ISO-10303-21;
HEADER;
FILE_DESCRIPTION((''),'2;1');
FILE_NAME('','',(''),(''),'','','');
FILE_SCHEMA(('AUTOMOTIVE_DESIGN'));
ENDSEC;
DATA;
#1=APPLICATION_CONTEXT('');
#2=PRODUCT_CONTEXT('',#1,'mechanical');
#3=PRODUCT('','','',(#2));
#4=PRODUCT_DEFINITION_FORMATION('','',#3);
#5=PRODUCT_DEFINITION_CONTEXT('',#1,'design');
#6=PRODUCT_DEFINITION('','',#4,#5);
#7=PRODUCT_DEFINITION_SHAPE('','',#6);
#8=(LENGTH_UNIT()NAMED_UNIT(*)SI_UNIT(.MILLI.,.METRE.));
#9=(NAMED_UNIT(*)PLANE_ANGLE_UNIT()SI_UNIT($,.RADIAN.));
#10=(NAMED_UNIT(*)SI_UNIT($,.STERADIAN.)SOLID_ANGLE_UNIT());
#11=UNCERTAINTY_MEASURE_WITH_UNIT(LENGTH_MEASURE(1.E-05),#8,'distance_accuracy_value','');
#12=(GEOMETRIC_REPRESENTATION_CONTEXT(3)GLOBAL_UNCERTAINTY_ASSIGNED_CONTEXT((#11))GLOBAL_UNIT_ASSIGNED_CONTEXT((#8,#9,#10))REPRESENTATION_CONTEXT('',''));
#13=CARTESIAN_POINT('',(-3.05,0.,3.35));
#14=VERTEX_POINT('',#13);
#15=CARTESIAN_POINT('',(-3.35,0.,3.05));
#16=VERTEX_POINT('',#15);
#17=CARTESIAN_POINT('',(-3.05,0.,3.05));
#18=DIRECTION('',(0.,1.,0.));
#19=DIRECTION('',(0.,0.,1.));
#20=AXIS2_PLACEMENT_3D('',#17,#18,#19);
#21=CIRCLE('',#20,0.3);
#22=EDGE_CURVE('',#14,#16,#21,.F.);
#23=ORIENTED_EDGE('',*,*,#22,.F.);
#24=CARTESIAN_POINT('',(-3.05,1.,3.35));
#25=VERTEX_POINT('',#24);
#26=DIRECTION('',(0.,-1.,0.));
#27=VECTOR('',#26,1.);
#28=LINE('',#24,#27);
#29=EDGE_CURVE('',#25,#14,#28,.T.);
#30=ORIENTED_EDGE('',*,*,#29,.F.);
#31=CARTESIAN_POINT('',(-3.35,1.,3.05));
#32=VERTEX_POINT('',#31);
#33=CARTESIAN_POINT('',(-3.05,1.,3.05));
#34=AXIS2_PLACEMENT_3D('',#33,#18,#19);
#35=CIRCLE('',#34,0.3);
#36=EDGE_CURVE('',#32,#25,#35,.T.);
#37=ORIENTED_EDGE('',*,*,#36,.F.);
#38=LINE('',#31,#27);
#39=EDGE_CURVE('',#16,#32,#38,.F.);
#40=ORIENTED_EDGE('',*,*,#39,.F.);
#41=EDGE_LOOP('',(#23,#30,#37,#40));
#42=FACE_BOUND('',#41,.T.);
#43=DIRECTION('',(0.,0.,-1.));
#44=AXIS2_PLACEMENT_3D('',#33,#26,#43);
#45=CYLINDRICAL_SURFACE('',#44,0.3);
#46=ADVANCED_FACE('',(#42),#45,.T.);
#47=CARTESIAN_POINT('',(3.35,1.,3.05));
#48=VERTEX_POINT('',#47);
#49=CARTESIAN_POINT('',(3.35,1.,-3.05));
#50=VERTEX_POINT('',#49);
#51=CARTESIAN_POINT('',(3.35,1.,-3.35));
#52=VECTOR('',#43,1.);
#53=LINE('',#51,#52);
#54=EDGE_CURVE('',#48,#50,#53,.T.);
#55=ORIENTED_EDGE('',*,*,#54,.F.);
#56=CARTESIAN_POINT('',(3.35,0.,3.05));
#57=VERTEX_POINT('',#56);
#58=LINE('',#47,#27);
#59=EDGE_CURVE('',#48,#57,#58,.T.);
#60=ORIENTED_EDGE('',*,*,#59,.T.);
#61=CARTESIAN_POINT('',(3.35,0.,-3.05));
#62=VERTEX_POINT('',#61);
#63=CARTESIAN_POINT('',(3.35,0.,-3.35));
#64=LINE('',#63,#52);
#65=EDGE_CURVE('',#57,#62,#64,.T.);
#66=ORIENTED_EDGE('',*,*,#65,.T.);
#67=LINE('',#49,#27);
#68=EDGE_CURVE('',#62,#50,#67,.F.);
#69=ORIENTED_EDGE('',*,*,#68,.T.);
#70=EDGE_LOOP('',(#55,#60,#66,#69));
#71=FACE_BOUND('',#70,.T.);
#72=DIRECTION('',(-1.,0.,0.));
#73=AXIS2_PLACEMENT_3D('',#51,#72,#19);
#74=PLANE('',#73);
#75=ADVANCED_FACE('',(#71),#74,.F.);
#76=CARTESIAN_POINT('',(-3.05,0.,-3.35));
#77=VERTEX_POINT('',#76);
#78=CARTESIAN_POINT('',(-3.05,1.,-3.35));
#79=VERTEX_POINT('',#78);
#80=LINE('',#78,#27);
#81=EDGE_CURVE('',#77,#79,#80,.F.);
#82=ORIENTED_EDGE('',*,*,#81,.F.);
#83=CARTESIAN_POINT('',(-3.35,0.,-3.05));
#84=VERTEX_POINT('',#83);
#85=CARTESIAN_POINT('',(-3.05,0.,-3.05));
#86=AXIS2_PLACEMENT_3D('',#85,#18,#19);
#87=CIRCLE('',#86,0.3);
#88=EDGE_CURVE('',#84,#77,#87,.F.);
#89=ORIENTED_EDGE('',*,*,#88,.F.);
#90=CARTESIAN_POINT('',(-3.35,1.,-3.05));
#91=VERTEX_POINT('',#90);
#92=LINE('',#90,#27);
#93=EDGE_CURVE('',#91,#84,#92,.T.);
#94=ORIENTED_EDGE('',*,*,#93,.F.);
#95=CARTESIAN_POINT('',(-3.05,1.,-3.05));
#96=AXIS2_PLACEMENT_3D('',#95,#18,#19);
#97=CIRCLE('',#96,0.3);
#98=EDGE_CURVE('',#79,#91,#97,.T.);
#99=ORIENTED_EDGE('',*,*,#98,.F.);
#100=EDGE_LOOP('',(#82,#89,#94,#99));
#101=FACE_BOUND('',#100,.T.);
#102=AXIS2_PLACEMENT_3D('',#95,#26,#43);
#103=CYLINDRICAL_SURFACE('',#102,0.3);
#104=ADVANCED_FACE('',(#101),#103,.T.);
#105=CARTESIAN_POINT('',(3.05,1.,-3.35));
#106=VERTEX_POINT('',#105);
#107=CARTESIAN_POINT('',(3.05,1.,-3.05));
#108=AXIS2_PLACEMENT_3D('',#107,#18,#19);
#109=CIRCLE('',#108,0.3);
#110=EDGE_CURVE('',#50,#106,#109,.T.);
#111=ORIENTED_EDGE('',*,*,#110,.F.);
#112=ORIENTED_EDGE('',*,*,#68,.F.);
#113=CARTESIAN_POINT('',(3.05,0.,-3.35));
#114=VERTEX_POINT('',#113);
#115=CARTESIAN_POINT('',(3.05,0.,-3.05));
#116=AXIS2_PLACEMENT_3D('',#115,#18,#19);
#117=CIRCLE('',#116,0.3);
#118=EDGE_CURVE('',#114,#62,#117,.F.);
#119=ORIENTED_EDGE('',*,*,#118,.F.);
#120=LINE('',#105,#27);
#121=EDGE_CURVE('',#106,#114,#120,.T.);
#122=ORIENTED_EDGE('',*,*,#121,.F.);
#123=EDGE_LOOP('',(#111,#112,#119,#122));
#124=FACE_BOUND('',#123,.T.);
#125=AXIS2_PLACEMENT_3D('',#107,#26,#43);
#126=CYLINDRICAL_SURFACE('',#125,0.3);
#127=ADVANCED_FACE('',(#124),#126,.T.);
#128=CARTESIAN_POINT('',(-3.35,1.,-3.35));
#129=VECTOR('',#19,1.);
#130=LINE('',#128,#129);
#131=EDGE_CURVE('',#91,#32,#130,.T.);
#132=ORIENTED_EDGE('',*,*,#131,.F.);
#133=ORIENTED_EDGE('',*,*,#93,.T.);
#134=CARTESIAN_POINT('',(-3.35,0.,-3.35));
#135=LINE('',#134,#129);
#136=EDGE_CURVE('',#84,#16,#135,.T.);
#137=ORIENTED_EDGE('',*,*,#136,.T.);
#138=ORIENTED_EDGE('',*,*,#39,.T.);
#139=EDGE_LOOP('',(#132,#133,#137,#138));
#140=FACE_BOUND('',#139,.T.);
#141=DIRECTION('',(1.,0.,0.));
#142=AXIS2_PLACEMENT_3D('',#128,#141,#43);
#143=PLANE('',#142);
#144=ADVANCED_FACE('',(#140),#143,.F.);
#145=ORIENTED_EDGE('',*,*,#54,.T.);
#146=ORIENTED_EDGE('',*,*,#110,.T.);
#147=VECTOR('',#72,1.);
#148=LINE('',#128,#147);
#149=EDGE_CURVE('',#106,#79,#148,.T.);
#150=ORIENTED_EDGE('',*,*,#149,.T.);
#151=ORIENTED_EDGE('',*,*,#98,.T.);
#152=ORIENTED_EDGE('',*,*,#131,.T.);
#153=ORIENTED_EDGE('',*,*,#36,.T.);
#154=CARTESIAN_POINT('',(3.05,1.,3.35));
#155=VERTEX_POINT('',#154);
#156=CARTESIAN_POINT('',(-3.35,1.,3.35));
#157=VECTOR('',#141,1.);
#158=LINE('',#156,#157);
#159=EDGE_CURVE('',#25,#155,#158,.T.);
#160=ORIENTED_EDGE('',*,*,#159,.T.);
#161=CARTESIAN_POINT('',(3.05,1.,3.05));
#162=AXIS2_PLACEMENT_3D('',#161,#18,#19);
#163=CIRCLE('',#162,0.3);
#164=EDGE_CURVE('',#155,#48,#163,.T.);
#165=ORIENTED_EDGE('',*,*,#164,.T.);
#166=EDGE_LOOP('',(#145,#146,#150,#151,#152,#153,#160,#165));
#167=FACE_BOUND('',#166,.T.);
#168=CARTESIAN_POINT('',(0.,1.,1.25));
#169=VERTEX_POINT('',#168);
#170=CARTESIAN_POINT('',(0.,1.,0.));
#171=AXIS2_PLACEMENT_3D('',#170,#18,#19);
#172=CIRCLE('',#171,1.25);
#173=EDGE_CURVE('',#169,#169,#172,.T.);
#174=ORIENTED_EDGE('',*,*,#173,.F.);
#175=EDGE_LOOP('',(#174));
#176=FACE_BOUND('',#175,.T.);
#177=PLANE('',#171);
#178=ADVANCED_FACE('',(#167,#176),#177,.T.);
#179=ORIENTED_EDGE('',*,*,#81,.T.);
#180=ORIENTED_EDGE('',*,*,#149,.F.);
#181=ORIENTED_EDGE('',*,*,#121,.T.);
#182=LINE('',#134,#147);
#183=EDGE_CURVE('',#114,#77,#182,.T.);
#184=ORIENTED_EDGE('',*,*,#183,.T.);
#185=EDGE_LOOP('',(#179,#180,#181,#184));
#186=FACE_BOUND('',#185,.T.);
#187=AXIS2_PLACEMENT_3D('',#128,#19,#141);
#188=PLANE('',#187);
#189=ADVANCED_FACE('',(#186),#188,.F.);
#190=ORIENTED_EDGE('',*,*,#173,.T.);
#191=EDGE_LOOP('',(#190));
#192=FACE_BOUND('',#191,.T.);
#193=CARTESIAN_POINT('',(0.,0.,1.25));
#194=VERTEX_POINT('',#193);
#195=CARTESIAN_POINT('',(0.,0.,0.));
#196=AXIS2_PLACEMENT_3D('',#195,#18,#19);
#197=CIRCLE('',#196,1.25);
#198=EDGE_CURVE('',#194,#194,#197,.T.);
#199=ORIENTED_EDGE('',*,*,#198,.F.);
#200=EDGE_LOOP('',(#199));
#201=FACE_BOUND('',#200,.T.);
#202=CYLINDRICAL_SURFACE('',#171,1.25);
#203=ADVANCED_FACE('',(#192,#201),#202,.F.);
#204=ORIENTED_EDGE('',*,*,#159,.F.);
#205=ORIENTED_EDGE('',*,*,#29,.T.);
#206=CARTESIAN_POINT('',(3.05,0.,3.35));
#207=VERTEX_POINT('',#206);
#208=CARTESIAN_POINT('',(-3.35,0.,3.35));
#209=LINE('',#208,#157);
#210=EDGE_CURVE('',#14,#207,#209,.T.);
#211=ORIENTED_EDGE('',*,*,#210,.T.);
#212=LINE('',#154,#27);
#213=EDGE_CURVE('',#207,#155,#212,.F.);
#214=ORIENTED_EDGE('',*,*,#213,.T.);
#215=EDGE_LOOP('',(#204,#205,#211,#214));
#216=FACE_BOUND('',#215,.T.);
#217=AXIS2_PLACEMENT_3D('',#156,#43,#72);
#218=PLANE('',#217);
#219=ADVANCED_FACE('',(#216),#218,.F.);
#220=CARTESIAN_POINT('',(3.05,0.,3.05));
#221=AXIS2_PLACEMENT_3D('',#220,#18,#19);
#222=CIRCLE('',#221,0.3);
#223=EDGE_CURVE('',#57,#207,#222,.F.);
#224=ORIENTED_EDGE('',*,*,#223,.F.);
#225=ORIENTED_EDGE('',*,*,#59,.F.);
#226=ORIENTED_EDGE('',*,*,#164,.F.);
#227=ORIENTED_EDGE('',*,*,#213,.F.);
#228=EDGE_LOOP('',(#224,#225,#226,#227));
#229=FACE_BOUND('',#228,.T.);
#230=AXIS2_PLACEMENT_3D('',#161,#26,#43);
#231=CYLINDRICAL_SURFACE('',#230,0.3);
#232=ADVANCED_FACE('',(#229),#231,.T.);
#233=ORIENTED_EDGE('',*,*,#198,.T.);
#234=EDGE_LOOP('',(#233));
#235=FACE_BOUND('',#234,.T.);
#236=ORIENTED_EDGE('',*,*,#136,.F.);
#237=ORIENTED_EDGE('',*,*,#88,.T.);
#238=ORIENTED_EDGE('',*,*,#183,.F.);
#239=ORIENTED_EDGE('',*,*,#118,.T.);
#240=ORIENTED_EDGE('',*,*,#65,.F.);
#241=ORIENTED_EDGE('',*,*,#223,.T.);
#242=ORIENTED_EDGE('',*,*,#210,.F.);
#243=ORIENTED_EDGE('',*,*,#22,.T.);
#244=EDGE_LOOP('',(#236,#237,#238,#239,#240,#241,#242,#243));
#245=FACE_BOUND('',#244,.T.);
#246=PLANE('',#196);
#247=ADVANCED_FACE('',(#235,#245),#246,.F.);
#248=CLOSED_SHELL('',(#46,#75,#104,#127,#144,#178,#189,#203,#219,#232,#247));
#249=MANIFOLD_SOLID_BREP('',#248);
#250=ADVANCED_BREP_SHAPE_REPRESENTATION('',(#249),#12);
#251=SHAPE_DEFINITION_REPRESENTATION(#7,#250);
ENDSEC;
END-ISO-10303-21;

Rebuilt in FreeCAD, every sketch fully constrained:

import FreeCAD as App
import Part
import Sketcher

V = App.Vector


def edges_at(feature, points):
    """Names of the edges that pass closest to the given points."""
    edges = feature.Shape.Edges
    near = lambda p: min(range(len(edges)), key=lambda i: edges[i].distToShape(Part.Vertex(*p))[0])
    return sorted({f"Edge{near(p) + 1}" for p in points})


def add_polygon(sketch, points):
    """Adds a closed chain of lines whose ends are joined by coincident constraints."""
    first, n = sketch.GeometryCount, len(points)
    for a, b in zip(points, points[1:] + points[:1]):
        sketch.addGeometry(Part.LineSegment(App.Vector(*a, 0), App.Vector(*b, 0)), False)
    for i in range(n):
        sketch.addConstraint(Sketcher.Constraint("Coincident", first + i, 2, first + (i + 1) % n, 1))

doc = App.newDocument("Part")
params = doc.addObject("Spreadsheet::Sheet", "Params")
for row, (alias, value) in enumerate([
    ("sketch1_width", "6.7 mm"),
    ("pad1_length", "1 mm"),
    ("sketch2_diameter", "2.5 mm"),
    ("hole_diameter", "2.5 mm"),
    ("fillet_radius", "0.3 mm"),
], start=1):
    params.set(f"A{row}", alias)
    params.set(f"B{row}", "=" + value)
    params.setAlias(f"B{row}", alias)

body = doc.addObject("PartDesign::Body", "Body")

# Sketch on XZ plane
sketch1 = body.newObject("Sketcher::SketchObject", "Sketch")
sketch1.AttachmentSupport = (doc.getObject("XZ_Plane"), [""])
sketch1.MapMode = "FlatFace"
add_polygon(sketch1, [(-3, -3), (-3, 3), (3, 3), (3, -3)])  # lines 0-3
sketch1.addConstraint([
    Sketcher.Constraint("Vertical", 0),
    Sketcher.Constraint("Horizontal", 1),
    Sketcher.Constraint("Vertical", 2),
    Sketcher.Constraint("Horizontal", 3),
    Sketcher.Constraint("Symmetric", 0, 2, 2, 2, -1, 1),
    Sketcher.Constraint("Equal", 3, 0),
    Sketcher.Constraint("DistanceX", 1, 1, 1, 2, 6.7),
])
sketch1.setExpression("Constraints[10]", "Params.sketch1_width")
pad1 = body.newObject("PartDesign::Pad", "Pad")
pad1.Profile = sketch1
pad1.setExpression("Length", "Params.pad1_length")
pad1.Reversed = True

# Sketch on XZ plane
sketch2 = body.newObject("Sketcher::SketchObject", "Sketch001")
sketch2.AttachmentSupport = (doc.getObject("XZ_Plane"), [""])
sketch2.MapMode = "FlatFace"
sketch2.AttachmentOffset = App.Placement(V(0, 0, -1), App.Rotation())
sketch2.addGeometry(Part.Circle(V(0, 0, 0), V(0, 0, 1), 1.2), False)
sketch2.addConstraint([
    Sketcher.Constraint("Coincident", 0, 3, -1, 1),
    Sketcher.Constraint("Diameter", 0, 2.5),
])
sketch2.setExpression("Constraints[1]", "Params.sketch2_diameter")
doc.recompute()
hole = body.newObject("PartDesign::Hole", "Hole")
hole.Profile = sketch2
hole.ThreadType = "None"
hole.setExpression("Diameter", "Params.hole_diameter")
hole.DepthType = "ThroughAll"
hole.Reversed = True
doc.recompute()

fillet = body.newObject("PartDesign::Fillet", "Fillet")
fillet.Base = (hole, edges_at(hole, [
    (3.35, 0.5, 3.35),
    (-3.35, 0.5, 3.35),
    (-3.35, 0.5, -3.35),
    (3.35, 0.5, -3.35),
]))
fillet.setExpression("Radius", "Params.fillet_radius")

doc.recompute()
